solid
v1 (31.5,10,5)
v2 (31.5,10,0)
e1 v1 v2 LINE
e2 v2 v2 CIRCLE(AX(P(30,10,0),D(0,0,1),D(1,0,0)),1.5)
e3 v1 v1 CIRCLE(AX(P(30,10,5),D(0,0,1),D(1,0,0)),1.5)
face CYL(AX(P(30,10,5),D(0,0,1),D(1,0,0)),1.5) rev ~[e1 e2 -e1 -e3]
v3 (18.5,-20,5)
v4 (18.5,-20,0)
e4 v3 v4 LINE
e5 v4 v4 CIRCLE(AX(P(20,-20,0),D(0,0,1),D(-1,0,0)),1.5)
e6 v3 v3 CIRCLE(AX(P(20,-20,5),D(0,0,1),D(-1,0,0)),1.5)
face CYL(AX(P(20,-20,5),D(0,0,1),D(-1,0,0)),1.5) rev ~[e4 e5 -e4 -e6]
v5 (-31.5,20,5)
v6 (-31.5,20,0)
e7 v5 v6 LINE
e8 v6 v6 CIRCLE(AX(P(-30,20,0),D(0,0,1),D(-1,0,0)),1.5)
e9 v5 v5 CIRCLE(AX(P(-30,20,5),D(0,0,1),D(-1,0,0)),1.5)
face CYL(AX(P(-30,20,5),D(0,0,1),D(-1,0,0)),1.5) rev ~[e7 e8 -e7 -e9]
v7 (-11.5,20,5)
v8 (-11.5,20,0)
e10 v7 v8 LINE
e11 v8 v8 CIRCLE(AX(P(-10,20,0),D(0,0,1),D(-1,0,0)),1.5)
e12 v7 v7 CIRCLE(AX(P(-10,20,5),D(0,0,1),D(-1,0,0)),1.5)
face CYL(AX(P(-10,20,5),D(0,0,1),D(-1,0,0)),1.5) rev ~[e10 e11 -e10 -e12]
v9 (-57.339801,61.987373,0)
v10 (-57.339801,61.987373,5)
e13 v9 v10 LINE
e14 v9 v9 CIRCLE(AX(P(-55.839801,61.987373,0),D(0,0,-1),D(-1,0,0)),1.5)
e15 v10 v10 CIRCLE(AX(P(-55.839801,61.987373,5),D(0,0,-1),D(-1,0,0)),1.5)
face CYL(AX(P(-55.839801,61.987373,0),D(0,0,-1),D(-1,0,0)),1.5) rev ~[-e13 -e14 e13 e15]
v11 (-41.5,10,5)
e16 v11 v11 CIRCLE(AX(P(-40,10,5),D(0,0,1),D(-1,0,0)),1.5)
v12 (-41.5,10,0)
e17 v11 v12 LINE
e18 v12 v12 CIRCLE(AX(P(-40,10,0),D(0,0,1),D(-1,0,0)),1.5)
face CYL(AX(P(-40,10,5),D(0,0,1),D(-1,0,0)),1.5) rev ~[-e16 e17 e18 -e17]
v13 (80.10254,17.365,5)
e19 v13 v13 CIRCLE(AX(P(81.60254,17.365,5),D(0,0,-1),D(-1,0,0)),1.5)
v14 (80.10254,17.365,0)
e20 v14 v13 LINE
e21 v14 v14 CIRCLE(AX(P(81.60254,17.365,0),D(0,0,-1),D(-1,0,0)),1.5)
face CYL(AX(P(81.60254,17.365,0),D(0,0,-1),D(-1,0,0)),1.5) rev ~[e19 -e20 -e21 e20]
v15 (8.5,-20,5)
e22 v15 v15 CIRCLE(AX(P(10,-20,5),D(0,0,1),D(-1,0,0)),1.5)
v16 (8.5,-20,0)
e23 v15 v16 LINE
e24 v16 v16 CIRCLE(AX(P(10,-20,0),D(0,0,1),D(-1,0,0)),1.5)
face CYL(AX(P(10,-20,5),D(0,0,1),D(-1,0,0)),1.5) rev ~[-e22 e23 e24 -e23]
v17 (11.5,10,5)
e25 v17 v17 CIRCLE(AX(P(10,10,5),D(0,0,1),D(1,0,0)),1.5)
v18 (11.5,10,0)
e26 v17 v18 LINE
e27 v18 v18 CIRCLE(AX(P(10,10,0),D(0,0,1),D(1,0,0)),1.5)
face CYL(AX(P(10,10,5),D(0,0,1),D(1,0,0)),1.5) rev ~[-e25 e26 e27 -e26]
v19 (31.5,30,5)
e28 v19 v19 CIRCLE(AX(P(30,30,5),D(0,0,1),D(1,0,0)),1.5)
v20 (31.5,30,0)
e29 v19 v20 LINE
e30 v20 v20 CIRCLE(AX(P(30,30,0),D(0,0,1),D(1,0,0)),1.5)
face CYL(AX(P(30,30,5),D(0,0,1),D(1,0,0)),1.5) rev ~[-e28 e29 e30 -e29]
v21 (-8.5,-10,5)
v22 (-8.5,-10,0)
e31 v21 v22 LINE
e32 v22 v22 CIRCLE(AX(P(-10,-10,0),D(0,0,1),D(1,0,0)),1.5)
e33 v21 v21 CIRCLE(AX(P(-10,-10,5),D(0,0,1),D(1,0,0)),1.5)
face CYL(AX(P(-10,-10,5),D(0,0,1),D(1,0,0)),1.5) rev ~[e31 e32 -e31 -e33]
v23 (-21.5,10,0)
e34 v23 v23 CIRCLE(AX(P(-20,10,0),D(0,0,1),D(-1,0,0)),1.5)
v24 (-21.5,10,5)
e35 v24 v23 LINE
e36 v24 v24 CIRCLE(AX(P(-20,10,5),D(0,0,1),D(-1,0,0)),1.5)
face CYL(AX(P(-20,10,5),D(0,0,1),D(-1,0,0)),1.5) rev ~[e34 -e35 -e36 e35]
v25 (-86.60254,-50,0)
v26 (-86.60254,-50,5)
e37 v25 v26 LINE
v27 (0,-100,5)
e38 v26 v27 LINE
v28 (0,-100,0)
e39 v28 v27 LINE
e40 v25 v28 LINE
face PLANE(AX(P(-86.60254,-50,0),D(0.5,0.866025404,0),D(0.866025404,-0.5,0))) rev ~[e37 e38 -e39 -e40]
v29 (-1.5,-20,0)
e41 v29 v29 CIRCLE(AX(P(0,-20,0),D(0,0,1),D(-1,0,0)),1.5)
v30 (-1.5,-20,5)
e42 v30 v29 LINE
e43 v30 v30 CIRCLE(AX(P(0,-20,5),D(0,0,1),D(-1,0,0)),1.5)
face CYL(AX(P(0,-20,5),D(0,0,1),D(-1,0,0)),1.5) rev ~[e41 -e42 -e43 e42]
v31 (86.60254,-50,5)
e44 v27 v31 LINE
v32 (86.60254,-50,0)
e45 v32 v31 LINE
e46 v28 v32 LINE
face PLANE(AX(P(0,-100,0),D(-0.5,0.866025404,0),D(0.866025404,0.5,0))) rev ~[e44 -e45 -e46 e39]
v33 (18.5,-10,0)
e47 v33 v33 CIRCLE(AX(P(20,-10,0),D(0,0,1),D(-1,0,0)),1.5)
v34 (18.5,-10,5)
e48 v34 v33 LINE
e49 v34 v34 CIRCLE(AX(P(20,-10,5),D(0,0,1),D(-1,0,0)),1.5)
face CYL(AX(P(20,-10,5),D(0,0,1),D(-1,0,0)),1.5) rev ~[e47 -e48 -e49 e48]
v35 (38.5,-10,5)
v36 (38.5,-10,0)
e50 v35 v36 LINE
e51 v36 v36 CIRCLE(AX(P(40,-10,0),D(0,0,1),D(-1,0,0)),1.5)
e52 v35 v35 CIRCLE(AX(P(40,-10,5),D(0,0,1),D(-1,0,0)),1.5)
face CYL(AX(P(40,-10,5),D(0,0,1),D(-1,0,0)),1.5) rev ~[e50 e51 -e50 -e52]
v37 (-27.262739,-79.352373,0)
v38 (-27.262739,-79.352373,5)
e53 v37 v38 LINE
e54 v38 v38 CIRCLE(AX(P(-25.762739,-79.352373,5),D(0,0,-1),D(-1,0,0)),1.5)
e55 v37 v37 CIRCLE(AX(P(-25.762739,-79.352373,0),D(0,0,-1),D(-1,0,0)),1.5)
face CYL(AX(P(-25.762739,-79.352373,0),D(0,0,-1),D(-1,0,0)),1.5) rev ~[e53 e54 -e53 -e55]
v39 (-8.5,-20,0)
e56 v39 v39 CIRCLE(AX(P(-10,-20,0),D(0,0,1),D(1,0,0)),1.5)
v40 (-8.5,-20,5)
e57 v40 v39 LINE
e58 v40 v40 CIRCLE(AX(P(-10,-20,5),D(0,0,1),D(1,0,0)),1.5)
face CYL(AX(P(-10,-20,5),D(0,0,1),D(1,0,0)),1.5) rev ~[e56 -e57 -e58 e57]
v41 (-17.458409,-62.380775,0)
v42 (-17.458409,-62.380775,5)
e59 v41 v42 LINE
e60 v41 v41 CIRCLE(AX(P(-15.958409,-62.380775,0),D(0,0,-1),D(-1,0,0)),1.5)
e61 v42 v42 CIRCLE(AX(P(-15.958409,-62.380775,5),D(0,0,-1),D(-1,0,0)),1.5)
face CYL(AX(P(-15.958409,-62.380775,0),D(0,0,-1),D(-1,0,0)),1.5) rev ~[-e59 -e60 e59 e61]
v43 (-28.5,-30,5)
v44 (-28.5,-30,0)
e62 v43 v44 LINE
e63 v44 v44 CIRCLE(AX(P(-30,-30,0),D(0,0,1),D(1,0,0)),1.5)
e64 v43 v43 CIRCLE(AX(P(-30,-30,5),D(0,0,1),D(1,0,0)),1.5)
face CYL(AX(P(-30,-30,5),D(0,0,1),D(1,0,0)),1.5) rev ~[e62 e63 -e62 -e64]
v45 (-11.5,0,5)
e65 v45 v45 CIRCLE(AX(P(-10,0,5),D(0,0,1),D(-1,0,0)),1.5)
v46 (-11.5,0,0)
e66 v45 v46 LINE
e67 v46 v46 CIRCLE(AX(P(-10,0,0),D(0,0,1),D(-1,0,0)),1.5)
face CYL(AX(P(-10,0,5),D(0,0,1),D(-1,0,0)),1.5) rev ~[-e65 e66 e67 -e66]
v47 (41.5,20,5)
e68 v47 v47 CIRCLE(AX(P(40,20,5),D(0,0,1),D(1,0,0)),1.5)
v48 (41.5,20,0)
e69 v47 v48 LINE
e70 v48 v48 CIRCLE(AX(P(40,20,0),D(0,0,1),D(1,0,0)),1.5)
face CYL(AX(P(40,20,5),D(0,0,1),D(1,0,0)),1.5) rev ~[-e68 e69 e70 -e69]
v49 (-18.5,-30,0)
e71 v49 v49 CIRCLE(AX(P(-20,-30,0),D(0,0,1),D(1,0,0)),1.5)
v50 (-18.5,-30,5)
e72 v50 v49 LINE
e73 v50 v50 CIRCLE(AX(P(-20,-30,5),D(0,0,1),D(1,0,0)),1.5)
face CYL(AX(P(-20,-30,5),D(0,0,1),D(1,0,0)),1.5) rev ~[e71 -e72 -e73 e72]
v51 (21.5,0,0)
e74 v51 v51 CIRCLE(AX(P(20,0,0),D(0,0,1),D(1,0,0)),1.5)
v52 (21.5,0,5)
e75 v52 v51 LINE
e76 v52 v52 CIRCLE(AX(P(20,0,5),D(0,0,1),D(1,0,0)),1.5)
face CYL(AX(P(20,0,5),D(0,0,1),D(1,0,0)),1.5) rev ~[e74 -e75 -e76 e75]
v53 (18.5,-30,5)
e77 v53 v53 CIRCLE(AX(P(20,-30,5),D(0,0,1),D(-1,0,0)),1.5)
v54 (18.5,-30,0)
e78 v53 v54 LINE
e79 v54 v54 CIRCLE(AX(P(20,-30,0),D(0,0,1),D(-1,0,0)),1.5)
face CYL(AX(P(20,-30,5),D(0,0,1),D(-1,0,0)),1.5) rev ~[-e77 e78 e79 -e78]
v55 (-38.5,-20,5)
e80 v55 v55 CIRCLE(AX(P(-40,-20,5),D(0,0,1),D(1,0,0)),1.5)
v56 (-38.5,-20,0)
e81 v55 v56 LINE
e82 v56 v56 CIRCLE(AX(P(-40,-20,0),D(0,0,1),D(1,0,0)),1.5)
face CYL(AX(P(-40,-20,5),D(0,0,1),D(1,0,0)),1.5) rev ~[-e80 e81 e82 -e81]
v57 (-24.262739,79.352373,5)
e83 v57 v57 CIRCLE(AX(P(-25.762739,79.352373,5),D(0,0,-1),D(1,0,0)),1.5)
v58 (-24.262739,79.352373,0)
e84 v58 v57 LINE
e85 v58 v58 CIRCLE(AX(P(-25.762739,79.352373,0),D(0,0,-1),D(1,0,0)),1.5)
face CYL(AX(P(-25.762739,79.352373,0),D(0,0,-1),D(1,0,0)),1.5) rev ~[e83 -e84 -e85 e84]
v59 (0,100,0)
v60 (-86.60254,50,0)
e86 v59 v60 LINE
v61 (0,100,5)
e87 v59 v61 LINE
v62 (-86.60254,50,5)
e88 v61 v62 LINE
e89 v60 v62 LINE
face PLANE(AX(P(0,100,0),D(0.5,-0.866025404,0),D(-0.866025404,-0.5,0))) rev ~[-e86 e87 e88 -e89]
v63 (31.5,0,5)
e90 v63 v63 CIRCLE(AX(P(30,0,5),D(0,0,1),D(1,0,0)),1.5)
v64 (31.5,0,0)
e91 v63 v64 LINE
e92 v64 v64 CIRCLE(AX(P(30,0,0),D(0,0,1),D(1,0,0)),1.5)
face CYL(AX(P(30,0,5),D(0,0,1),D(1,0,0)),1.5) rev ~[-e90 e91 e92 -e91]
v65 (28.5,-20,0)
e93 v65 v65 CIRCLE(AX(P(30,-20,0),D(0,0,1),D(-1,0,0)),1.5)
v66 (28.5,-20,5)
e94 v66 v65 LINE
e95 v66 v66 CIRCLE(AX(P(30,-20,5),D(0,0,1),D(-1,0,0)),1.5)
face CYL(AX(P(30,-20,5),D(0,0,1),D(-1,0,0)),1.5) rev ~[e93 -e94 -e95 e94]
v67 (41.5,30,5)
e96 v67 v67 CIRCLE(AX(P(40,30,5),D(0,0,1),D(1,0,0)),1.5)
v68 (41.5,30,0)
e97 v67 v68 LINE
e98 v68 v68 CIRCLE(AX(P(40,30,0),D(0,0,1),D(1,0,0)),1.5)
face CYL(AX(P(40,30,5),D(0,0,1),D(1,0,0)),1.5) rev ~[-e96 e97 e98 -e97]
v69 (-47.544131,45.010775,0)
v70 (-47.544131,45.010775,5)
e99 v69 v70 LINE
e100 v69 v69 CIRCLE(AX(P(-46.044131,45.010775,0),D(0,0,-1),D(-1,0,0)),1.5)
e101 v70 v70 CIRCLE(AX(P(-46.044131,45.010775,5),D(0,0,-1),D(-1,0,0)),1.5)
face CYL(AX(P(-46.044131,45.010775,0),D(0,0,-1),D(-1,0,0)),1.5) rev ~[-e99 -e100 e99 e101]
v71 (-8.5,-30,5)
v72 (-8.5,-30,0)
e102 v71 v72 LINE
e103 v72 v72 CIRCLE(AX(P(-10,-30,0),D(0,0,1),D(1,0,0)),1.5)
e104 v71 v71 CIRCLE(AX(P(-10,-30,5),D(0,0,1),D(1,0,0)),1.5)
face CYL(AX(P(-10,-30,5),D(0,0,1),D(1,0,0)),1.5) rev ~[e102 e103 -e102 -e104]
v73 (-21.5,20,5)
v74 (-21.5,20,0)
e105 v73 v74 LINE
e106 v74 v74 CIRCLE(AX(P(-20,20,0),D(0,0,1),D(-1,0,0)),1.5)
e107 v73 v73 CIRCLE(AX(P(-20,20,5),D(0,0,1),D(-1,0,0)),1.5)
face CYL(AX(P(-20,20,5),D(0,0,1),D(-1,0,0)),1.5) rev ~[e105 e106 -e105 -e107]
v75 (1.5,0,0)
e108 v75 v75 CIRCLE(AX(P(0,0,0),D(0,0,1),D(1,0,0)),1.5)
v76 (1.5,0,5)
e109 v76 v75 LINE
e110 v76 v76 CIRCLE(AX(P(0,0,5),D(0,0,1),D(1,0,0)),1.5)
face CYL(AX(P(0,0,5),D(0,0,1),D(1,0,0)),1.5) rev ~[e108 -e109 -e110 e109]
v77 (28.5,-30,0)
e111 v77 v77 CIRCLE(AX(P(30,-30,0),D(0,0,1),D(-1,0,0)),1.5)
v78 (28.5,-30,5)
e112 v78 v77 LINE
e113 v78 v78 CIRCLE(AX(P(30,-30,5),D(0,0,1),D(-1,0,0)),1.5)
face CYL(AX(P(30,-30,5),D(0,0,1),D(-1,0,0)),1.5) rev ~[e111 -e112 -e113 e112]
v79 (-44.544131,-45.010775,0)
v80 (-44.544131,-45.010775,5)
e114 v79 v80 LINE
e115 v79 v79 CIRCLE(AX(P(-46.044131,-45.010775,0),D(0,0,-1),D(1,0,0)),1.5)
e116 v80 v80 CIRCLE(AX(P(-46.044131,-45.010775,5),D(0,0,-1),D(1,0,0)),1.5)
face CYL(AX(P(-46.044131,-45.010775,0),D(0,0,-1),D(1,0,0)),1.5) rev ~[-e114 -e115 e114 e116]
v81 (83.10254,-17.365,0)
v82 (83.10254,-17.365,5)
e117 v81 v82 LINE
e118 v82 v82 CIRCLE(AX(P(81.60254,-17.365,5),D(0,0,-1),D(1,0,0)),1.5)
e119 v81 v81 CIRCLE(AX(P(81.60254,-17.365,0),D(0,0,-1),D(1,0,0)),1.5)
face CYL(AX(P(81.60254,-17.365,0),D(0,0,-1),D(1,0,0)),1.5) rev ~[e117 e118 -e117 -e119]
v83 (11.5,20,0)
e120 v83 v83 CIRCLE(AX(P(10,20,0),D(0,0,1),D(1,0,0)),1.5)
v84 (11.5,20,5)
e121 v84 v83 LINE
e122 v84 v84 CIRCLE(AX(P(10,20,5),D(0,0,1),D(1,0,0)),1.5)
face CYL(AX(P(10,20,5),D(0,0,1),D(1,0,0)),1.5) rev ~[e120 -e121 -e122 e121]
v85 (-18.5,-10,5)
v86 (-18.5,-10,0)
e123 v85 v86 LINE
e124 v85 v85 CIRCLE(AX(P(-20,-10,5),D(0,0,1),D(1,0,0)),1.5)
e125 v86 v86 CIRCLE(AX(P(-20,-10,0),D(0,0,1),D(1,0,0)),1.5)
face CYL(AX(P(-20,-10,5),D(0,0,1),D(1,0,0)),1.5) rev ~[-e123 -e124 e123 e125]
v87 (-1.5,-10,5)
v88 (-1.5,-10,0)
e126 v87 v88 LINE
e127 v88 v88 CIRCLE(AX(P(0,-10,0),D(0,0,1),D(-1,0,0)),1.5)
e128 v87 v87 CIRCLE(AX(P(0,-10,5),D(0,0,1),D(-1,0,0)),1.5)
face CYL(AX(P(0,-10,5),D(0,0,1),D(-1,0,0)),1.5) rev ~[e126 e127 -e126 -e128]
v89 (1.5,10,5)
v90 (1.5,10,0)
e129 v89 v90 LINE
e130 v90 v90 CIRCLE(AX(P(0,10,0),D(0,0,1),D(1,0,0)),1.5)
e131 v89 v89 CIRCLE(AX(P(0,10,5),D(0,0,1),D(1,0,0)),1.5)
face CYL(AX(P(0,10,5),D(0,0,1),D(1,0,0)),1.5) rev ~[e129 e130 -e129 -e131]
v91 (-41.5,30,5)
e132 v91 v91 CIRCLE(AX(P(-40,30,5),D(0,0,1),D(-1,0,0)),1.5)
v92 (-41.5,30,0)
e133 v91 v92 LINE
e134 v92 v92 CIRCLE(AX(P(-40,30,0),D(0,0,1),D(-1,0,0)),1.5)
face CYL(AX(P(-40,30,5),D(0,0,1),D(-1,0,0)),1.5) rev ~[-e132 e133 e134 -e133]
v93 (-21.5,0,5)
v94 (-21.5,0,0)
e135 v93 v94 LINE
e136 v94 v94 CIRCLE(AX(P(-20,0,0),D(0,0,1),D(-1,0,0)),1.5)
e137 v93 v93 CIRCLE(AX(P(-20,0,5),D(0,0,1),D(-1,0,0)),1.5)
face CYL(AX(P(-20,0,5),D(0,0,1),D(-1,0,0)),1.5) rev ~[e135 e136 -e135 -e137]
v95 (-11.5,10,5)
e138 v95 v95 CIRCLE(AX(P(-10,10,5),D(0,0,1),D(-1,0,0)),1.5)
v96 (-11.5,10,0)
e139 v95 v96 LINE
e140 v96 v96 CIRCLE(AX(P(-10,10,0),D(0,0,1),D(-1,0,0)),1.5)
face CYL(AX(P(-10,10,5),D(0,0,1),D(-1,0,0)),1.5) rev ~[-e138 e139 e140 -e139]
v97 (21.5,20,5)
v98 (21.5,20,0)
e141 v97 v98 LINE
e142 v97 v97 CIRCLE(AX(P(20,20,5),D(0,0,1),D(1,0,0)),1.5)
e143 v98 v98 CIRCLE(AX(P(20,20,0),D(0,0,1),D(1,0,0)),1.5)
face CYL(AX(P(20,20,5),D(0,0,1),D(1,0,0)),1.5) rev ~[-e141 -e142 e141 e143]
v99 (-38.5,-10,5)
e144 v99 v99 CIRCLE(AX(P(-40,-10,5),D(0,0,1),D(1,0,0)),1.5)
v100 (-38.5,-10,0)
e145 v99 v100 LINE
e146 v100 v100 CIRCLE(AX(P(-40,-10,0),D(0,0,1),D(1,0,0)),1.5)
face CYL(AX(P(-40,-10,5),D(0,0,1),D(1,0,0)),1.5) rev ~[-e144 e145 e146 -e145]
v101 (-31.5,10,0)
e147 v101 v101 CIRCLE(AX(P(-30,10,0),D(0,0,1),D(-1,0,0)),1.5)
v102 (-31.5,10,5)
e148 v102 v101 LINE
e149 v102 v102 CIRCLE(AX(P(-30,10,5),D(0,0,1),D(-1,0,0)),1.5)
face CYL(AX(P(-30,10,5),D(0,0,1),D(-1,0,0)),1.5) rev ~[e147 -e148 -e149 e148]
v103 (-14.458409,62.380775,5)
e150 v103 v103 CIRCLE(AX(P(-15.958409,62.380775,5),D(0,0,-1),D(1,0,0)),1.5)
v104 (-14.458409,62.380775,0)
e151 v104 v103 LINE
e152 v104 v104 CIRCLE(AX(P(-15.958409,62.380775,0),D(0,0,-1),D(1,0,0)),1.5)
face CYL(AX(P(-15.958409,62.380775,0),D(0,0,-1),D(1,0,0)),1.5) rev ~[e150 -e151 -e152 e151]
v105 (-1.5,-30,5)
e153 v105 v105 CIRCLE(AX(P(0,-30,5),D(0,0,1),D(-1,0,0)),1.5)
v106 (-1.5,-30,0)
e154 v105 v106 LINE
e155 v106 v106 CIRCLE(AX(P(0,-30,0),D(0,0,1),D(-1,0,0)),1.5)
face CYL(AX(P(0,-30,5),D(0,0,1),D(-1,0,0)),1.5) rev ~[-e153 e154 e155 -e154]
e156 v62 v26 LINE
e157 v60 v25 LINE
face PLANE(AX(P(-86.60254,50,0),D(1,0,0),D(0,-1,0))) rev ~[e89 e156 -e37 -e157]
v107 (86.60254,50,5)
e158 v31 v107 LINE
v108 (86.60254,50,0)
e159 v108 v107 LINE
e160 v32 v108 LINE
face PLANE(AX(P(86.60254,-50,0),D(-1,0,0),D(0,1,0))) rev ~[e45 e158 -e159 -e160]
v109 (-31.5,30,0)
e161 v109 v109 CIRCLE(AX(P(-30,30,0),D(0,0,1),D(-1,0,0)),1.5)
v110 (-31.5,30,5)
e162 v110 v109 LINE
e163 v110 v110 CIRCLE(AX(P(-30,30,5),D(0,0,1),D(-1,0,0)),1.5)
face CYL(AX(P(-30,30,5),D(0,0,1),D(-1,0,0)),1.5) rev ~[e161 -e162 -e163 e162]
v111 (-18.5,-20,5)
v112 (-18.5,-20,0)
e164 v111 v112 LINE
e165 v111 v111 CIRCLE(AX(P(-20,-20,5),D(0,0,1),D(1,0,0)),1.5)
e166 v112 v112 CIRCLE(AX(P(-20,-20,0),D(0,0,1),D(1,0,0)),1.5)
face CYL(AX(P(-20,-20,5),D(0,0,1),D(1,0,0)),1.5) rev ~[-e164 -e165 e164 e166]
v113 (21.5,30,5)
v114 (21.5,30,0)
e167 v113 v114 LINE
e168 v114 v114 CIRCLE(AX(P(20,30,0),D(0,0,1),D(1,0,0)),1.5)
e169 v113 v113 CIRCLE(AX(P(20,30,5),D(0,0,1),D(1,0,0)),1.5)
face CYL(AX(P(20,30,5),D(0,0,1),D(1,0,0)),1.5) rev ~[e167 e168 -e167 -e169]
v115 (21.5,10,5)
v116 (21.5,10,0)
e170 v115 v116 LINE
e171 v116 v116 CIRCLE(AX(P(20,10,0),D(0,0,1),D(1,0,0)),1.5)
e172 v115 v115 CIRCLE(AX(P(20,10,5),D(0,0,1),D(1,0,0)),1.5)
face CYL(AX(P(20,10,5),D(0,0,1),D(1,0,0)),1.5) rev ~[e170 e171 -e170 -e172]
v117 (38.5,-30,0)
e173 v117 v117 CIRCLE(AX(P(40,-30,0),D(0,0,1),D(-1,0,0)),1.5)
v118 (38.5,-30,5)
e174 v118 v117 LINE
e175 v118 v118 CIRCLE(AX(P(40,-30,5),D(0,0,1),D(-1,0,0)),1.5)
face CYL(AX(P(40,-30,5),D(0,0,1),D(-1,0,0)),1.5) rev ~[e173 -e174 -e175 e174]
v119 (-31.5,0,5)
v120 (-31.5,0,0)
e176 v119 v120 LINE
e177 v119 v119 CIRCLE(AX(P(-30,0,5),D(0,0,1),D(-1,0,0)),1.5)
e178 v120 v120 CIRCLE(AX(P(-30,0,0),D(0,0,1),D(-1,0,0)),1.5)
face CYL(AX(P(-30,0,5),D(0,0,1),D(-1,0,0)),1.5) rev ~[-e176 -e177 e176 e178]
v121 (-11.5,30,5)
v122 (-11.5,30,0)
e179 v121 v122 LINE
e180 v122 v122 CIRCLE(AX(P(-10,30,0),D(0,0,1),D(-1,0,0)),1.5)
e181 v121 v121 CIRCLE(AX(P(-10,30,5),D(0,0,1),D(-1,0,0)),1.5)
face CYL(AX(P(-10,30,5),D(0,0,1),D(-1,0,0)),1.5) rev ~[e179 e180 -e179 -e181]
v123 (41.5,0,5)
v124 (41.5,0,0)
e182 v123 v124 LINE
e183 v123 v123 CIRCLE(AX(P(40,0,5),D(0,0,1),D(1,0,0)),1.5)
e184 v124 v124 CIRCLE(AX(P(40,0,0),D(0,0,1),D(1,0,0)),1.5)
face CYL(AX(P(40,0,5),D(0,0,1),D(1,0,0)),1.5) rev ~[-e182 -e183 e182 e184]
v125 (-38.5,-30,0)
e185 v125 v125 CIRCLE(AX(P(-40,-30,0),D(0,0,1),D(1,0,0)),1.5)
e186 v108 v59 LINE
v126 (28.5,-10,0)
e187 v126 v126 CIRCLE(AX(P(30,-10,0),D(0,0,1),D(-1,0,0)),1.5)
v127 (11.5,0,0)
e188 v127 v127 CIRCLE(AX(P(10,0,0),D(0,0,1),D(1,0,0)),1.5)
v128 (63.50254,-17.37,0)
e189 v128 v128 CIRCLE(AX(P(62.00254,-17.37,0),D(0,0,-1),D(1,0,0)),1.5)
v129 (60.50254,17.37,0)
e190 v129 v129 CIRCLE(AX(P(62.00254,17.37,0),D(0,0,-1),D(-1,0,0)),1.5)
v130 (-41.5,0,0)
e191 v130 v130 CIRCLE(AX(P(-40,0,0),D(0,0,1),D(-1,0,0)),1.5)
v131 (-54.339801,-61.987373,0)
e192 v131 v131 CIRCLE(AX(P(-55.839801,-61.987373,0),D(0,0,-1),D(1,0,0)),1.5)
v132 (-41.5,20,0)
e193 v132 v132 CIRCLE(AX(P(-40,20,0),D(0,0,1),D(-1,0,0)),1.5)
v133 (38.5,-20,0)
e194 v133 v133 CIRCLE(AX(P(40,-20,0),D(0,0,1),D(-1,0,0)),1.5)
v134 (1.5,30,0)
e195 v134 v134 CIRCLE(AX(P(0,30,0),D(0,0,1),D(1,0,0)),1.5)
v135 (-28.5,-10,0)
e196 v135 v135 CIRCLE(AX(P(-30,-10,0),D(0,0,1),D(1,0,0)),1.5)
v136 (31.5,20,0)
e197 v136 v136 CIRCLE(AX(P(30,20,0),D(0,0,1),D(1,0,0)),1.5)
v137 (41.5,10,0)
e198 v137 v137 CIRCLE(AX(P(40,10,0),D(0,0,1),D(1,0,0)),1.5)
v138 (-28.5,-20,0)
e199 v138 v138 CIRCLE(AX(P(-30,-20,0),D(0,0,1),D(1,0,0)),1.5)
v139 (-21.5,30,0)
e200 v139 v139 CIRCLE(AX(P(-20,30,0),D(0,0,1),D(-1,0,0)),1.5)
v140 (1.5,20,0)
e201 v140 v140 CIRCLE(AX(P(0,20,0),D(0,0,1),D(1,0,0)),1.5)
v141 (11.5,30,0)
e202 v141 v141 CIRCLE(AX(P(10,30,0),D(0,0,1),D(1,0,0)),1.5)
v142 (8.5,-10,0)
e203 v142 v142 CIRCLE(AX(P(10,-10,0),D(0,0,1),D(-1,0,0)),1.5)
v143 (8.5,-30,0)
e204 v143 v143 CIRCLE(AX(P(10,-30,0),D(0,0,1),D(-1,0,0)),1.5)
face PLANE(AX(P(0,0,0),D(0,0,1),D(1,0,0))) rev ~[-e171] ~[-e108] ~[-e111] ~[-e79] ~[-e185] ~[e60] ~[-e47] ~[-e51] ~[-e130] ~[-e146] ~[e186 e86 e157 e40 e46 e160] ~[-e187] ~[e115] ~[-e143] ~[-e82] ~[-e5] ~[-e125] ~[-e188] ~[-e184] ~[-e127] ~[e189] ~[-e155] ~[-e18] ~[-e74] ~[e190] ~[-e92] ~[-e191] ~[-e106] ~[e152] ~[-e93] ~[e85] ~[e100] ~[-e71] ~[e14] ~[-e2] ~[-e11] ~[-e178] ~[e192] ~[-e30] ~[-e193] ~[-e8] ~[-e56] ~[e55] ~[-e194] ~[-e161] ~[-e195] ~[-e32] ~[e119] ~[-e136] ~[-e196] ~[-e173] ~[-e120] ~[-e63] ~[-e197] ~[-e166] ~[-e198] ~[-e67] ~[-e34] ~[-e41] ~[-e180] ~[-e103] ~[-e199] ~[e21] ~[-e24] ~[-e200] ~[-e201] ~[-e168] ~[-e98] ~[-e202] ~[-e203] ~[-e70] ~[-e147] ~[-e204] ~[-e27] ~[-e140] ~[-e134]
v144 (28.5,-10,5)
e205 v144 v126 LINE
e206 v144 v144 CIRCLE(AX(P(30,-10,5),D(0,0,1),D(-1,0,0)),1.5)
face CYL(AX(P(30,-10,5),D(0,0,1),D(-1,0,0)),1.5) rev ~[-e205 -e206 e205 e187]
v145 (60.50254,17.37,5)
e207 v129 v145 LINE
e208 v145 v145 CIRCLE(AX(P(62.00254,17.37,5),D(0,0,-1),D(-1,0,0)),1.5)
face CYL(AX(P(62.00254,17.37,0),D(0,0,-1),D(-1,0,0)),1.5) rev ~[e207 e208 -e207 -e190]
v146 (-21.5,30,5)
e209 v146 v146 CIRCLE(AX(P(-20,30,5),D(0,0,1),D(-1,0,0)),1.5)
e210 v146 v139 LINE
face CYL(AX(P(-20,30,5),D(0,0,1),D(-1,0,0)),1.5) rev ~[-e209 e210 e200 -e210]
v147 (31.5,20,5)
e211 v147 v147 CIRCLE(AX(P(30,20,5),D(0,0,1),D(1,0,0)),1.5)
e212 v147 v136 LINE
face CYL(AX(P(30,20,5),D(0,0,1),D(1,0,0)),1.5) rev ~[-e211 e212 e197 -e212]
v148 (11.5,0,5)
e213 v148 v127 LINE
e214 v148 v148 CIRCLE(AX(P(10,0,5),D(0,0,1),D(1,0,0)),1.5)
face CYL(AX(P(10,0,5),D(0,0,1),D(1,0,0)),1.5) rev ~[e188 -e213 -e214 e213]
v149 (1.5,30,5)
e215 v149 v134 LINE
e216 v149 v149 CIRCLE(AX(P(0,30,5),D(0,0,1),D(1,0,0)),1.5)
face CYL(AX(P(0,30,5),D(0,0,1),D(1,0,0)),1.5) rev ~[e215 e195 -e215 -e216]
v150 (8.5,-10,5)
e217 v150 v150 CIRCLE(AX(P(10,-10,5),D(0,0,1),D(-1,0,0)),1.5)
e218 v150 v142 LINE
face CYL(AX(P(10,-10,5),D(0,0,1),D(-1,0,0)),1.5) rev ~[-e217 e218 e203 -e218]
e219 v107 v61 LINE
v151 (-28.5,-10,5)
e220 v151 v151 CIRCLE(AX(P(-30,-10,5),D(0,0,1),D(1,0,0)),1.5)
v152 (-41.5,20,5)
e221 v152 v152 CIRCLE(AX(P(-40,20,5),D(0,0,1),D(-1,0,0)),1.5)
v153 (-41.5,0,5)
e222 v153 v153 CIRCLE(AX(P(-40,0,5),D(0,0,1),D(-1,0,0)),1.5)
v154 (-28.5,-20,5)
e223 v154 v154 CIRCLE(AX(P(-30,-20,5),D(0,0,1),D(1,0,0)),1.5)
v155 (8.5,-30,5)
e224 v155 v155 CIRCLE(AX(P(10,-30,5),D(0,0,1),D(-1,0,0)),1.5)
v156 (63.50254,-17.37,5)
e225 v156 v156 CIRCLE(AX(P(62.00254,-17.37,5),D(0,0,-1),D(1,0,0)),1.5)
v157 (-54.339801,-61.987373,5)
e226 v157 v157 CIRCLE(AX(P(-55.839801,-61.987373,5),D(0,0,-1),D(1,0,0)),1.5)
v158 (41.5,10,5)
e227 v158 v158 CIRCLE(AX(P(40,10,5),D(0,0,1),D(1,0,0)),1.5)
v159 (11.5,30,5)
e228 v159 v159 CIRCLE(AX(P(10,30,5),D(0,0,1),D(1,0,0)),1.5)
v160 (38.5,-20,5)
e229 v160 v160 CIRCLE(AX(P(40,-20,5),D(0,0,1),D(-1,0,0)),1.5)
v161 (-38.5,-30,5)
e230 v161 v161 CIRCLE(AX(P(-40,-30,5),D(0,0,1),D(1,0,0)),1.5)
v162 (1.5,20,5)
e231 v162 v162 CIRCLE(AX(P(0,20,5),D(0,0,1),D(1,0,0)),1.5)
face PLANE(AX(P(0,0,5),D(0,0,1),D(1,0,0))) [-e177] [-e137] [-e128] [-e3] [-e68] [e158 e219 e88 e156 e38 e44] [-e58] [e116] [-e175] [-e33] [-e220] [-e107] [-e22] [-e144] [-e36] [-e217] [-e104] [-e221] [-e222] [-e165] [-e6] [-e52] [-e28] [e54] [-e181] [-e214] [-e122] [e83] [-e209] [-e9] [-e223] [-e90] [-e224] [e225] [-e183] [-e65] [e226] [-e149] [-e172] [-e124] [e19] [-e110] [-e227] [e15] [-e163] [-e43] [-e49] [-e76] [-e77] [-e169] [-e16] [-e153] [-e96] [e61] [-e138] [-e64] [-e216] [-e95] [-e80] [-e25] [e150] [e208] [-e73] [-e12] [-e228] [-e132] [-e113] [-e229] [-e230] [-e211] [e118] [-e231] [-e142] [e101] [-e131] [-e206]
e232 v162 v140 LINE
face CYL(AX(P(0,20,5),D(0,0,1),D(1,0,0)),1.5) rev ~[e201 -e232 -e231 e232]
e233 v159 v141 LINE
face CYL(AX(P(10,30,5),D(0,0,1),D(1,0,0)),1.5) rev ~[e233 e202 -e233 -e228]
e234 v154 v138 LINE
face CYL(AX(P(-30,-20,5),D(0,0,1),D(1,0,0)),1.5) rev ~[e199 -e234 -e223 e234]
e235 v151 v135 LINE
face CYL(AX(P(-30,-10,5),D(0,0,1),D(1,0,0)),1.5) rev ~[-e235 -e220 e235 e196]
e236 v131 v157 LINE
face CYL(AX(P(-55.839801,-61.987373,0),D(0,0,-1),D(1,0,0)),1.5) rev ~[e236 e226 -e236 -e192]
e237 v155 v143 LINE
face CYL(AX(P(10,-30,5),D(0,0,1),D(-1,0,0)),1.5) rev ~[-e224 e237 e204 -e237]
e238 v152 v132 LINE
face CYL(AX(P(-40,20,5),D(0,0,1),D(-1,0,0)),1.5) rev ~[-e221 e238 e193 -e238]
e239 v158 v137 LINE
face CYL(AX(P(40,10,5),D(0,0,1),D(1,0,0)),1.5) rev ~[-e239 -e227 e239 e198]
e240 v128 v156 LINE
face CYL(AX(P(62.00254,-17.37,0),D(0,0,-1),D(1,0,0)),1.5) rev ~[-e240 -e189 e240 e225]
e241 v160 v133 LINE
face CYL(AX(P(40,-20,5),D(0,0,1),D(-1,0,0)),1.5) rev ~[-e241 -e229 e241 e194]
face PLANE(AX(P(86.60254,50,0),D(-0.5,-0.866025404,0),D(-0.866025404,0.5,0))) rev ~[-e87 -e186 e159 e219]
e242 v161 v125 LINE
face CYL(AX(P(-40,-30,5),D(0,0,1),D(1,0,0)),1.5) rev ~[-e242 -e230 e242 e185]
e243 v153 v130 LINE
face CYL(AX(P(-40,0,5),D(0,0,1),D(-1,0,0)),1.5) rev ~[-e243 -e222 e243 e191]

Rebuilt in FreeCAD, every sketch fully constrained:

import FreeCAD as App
import Part
import Sketcher
Q = App.Units.Quantity

doc = App.newDocument("Part")
params = doc.addObject("Spreadsheet::Sheet", "Params")
for row, (alias, value) in enumerate([
    ("sketch1_height", "100 mm"),
    ("sketch1_length", "100 mm"),
    ("pad1_length", "5 mm"),
    ("sketch2_diameter", "3 mm"),
    ("pocket1_length", "5 mm"),
    ("sketch3_diameter", "3 mm"),
], start=1):
    params.set(f"A{row}", alias)
    params.set(f"B{row}", "=" + value)
    params.setAlias(f"B{row}", alias)

body = doc.addObject("PartDesign::Body", "Body")

sketch1 = body.newObject("Sketcher::SketchObject", "Sketch")
sketch1.AttachmentSupport = (doc.getObject("XY_Plane"), [""])
sketch1.MapMode = "FlatFace"
sketch1.addGeometry(Part.LineSegment(App.Vector(87, 50, 0), App.Vector(0, 100, 0)), False)
sketch1.addGeometry(Part.LineSegment(App.Vector(0, 100, 0), App.Vector(-87, 50, 0)), False)
sketch1.addGeometry(Part.LineSegment(App.Vector(-87, 50, 0), App.Vector(-87, -50, 0)), False)
sketch1.addGeometry(Part.LineSegment(App.Vector(-87, -50, 0), App.Vector(0, -100, 0)), False)
sketch1.addGeometry(Part.LineSegment(App.Vector(0, -100, 0), App.Vector(87, -50, 0)), False)
sketch1.addGeometry(Part.LineSegment(App.Vector(87, -50, 0), App.Vector(87, 50, 0)), False)
sketch1.addConstraint(Sketcher.Constraint("Coincident", 0, 2, 1, 1))
sketch1.addConstraint(Sketcher.Constraint("Coincident", 1, 2, 2, 1))
sketch1.addConstraint(Sketcher.Constraint("Coincident", 2, 2, 3, 1))
sketch1.addConstraint(Sketcher.Constraint("Coincident", 3, 2, 4, 1))
sketch1.addConstraint(Sketcher.Constraint("Coincident", 4, 2, 5, 1))
sketch1.addConstraint(Sketcher.Constraint("Coincident", 5, 2, 0, 1))
sketch1.addConstraint(Sketcher.Constraint("Vertical", 2))
sketch1.addConstraint(Sketcher.Constraint("Vertical", 5))
sketch1.addConstraint(Sketcher.Constraint("Symmetric", 0, 2, 3, 2, -1, 1))
sketch1.addConstraint(Sketcher.Constraint("Symmetric", 1, 2, 4, 2, -1, 1))
sketch1.addConstraint(Sketcher.Constraint("PointOnObject", 0, 2, -2))
sketch1.addConstraint(Sketcher.Constraint("Parallel", 0, 3))
sketch1.addConstraint(Sketcher.Constraint("Horizontal", 2, 2, 4, 2))
sketch1.addConstraint(Sketcher.Constraint("DistanceY", 2, 2, 2, 1, Q("100 mm")))
sketch1.addConstraint(Sketcher.Constraint("Angle", 0, Q("150 deg")))
sketch1.addConstraint(Sketcher.Constraint("Distance", 0, Q("100 mm")))
sketch1.setExpression("Constraints[13]", "Params.sketch1_height")
sketch1.setExpression("Constraints[15]", "Params.sketch1_length")
pad1 = body.newObject("PartDesign::Pad", "Pad")
pad1.Profile = sketch1
pad1.setExpression("Length", "Params.pad1_length")

sketch2 = body.newObject("Sketcher::SketchObject", "Sketch001")
sketch2.AttachmentSupport = (doc.getObject("XY_Plane"), [""])
sketch2.MapMode = "FlatFace"
sketch2.addGeometry(Part.Circle(App.Vector(81.6, 17.4, 0), App.Vector(0, 0, 1), 1.5), False)
sketch2.addGeometry(Part.Circle(App.Vector(62, 17.4, 0), App.Vector(0, 0, 1), 1.5), False)
sketch2.addGeometry(Part.Circle(App.Vector(62, -17.4, 0), App.Vector(0, 0, 1), 1.5), False)
sketch2.addGeometry(Part.Circle(App.Vector(81.6, -17.4, 0), App.Vector(0, 0, 1), 1.5), False)
sketch2.addGeometry(Part.Circle(App.Vector(-55.8, 62, 0), App.Vector(0, 0, 1), 1.5), False)
sketch2.addGeometry(Part.Circle(App.Vector(-46, 45, 0), App.Vector(0, 0, 1), 1.5), False)
sketch2.addGeometry(Part.Circle(App.Vector(-16, 62.4, 0), App.Vector(0, 0, 1), 1.5), False)
sketch2.addGeometry(Part.Circle(App.Vector(-25.8, 79.4, 0), App.Vector(0, 0, 1), 1.5), False)
sketch2.addGeometry(Part.Circle(App.Vector(-25.8, -79.4, 0), App.Vector(0, 0, 1), 1.5), False)
sketch2.addGeometry(Part.Circle(App.Vector(-16, -62.4, 0), App.Vector(0, 0, 1), 1.5), False)
sketch2.addGeometry(Part.Circle(App.Vector(-46, -45, 0), App.Vector(0, 0, 1), 1.5), False)
sketch2.addGeometry(Part.Circle(App.Vector(-55.8, -62, 0), App.Vector(0, 0, 1), 1.5), False)
sketch2.addConstraint(Sketcher.Constraint("Equal", 0, 1))
sketch2.addConstraint(Sketcher.Constraint("Equal", 1, 2))
sketch2.addConstraint(Sketcher.Constraint("Equal", 2, 3))
sketch2.addConstraint(Sketcher.Constraint("Equal", 3, 4))
sketch2.addConstraint(Sketcher.Constraint("Equal", 4, 5))
sketch2.addConstraint(Sketcher.Constraint("Equal", 5, 6))
sketch2.addConstraint(Sketcher.Constraint("Equal", 6, 7))
sketch2.addConstraint(Sketcher.Constraint("Equal", 7, 8))
sketch2.addConstraint(Sketcher.Constraint("Equal", 8, 9))
sketch2.addConstraint(Sketcher.Constraint("Equal", 9, 10))
sketch2.addConstraint(Sketcher.Constraint("Equal", 10, 11))
sketch2.addConstraint(Sketcher.Constraint("Symmetric", 1, 3, 2, 3, -1))
sketch2.addConstraint(Sketcher.Constraint("Symmetric", 0, 3, 3, 3, -1))
sketch2.addConstraint(Sketcher.Constraint("Symmetric", 7, 3, 8, 3, -1))
sketch2.addConstraint(Sketcher.Constraint("Symmetric", 6, 3, 9, 3, -1))
sketch2.addConstraint(Sketcher.Constraint("Symmetric", 5, 3, 10, 3, -1))
sketch2.addConstraint(Sketcher.Constraint("Symmetric", 4, 3, 11, 3, -1))
sketch2.addConstraint(Sketcher.Constraint("Diameter", 0, Q("3 mm")))
sketch2.addConstraint(Sketcher.Constraint("DistanceX", 1, 3, 0, 3, Q("19.6 mm")))
sketch2.addConstraint(Sketcher.Constraint("DistanceY", -1, 1, 1, 3, Q("17.37 mm")))
sketch2.addConstraint(Sketcher.Constraint("DistanceY", 3, 3, 0, 3, Q("34.73 mm")))
sketch2.addConstraint(Sketcher.Constraint("DistanceY", 5, 3, 6, 3, Q("17.37 mm")))
sketch2.addConstraint(Sketcher.Constraint("DistanceY", 4, 3, 7, 3, Q("17.365 mm")))
sketch2.addConstraint(Sketcher.Constraint("DistanceX", 4, 3, -1, 1, Q("55.839801 mm")))
sketch2.addConstraint(Sketcher.Constraint("DistanceX", -1, 1, 0, 3, Q("81.60254 mm")))
sketch2.addConstraint(Sketcher.Constraint("DistanceX", 5, 3, -1, 1, Q("46.044131 mm")))
sketch2.addConstraint(Sketcher.Constraint("DistanceX", 6, 3, -1, 1, Q("15.958409 mm")))
sketch2.addConstraint(Sketcher.Constraint("DistanceX", 7, 3, -1, 1, Q("25.762739 mm")))
sketch2.addConstraint(Sketcher.Constraint("DistanceY", 8, 3, 5, 3, Q("124.363148 mm")))
sketch2.addConstraint(Sketcher.Constraint("DistanceY", 9, 3, 5, 3, Q("107.39155 mm")))
sketch2.setExpression("Constraints[17]", "Params.sketch2_diameter")
pocket1 = body.newObject("PartDesign::Pocket", "Pocket")
pocket1.Profile = sketch2
pocket1.setExpression("Length", "Params.pocket1_length")
pocket1.Reversed = True

sketch3 = body.newObject("Sketcher::SketchObject", "Sketch002")
sketch3.AttachmentSupport = (doc.getObject("XY_Plane"), [""])
sketch3.MapMode = "FlatFace"
sketch3.AttachmentOffset = App.Placement(App.Vector(0, 0, 5), App.Rotation())
sketch3.addGeometry(Part.Circle(App.Vector(0, 0, 0), App.Vector(0, 0, 1), 1.5), False)
sketch3.addGeometry(Part.Circle(App.Vector(10, 0, 0), App.Vector(0, 0, 1), 1.5), False)
sketch3.addGeometry(Part.Circle(App.Vector(20, 0, 0), App.Vector(0, 0, 1), 1.5), False)
sketch3.addGeometry(Part.Circle(App.Vector(30, 0, 0), App.Vector(0, 0, 1), 1.5), False)
sketch3.addGeometry(Part.Circle(App.Vector(40, 0, 0), App.Vector(0, 0, 1), 1.5), False)
sketch3.addGeometry(Part.Circle(App.Vector(10, 10, 0), App.Vector(0, 0, 1), 1.5), False)
sketch3.addGeometry(Part.Circle(App.Vector(20, 10, 0), App.Vector(0, 0, 1), 1.5), False)
sketch3.addGeometry(Part.Circle(App.Vector(30, 10, 0), App.Vector(0, 0, 1), 1.5), False)
sketch3.addGeometry(Part.Circle(App.Vector(40, 10, 0), App.Vector(0, 0, 1), 1.5), False)
sketch3.addGeometry(Part.Circle(App.Vector(10, 20, 0), App.Vector(0, 0, 1), 1.5), False)
sketch3.addGeometry(Part.Circle(App.Vector(20, 20, 0), App.Vector(0, 0, 1), 1.5), False)
sketch3.addGeometry(Part.Circle(App.Vector(30, 20, 0), App.Vector(0, 0, 1), 1.5), False)
sketch3.addGeometry(Part.Circle(App.Vector(40, 20, 0), App.Vector(0, 0, 1), 1.5), False)
sketch3.addGeometry(Part.Circle(App.Vector(10, 30, 0), App.Vector(0, 0, 1), 1.5), False)
sketch3.addGeometry(Part.Circle(App.Vector(20, 30, 0), App.Vector(0, 0, 1), 1.5), False)
sketch3.addGeometry(Part.Circle(App.Vector(30, 30, 0), App.Vector(0, 0, 1), 1.5), False)
sketch3.addGeometry(Part.Circle(App.Vector(40, 30, 0), App.Vector(0, 0, 1), 1.5), False)
sketch3.addGeometry(Part.Circle(App.Vector(0, 10, 0), App.Vector(0, 0, 1), 1.5), False)
sketch3.addGeometry(Part.Circle(App.Vector(0, 20, 0), App.Vector(0, 0, 1), 1.5), False)
sketch3.addGeometry(Part.Circle(App.Vector(0, 30, 0), App.Vector(0, 0, 1), 1.5), False)
sketch3.addGeometry(Part.Circle(App.Vector(0, -30, 0), App.Vector(0, 0, 1), 1.5), False)
sketch3.addGeometry(Part.Circle(App.Vector(0, -20, 0), App.Vector(0, 0, 1), 1.5), False)
sketch3.addGeometry(Part.Circle(App.Vector(0, -10, 0), App.Vector(0, 0, 1), 1.5), False)
sketch3.addGeometry(Part.Circle(App.Vector(40, -30, 0), App.Vector(0, 0, 1), 1.5), False)
sketch3.addGeometry(Part.Circle(App.Vector(30, -30, 0), App.Vector(0, 0, 1), 1.5), False)
sketch3.addGeometry(Part.Circle(App.Vector(20, -30, 0), App.Vector(0, 0, 1), 1.5), False)
sketch3.addGeometry(Part.Circle(App.Vector(10, -30, 0), App.Vector(0, 0, 1), 1.5), False)
sketch3.addGeometry(Part.Circle(App.Vector(40, -20, 0), App.Vector(0, 0, 1), 1.5), False)
sketch3.addGeometry(Part.Circle(App.Vector(30, -20, 0), App.Vector(0, 0, 1), 1.5), False)
sketch3.addGeometry(Part.Circle(App.Vector(20, -20, 0), App.Vector(0, 0, 1), 1.5), False)
sketch3.addGeometry(Part.Circle(App.Vector(10, -20, 0), App.Vector(0, 0, 1), 1.5), False)
sketch3.addGeometry(Part.Circle(App.Vector(40, -10, 0), App.Vector(0, 0, 1), 1.5), False)
sketch3.addGeometry(Part.Circle(App.Vector(30, -10, 0), App.Vector(0, 0, 1), 1.5), False)
sketch3.addGeometry(Part.Circle(App.Vector(20, -10, 0), App.Vector(0, 0, 1), 1.5), False)
sketch3.addGeometry(Part.Circle(App.Vector(10, -10, 0), App.Vector(0, 0, 1), 1.5), False)
sketch3.addGeometry(Part.Circle(App.Vector(-10, -10, 0), App.Vector(0, 0, 1), 1.5), False)
sketch3.addGeometry(Part.Circle(App.Vector(-20, -10, 0), App.Vector(0, 0, 1), 1.5), False)
sketch3.addGeometry(Part.Circle(App.Vector(-30, -10, 0), App.Vector(0, 0, 1), 1.5), False)
sketch3.addGeometry(Part.Circle(App.Vector(-40, -10, 0), App.Vector(0, 0, 1), 1.5), False)
sketch3.addGeometry(Part.Circle(App.Vector(-10, -20, 0), App.Vector(0, 0, 1), 1.5), False)
sketch3.addGeometry(Part.Circle(App.Vector(-20, -20, 0), App.Vector(0, 0, 1), 1.5), False)
sketch3.addGeometry(Part.Circle(App.Vector(-30, -20, 0), App.Vector(0, 0, 1), 1.5), False)
sketch3.addGeometry(Part.Circle(App.Vector(-40, -20, 0), App.Vector(0, 0, 1), 1.5), False)
sketch3.addGeometry(Part.Circle(App.Vector(-10, -30, 0), App.Vector(0, 0, 1), 1.5), False)
sketch3.addGeometry(Part.Circle(App.Vector(-20, -30, 0), App.Vector(0, 0, 1), 1.5), False)
sketch3.addGeometry(Part.Circle(App.Vector(-30, -30, 0), App.Vector(0, 0, 1), 1.5), False)
sketch3.addGeometry(Part.Circle(App.Vector(-40, -30, 0), App.Vector(0, 0, 1), 1.5), False)
sketch3.addGeometry(Part.Circle(App.Vector(-40, 30, 0), App.Vector(0, 0, 1), 1.5), False)
sketch3.addGeometry(Part.Circle(App.Vector(-30, 30, 0), App.Vector(0, 0, 1), 1.5), False)
sketch3.addGeometry(Part.Circle(App.Vector(-20, 30, 0), App.Vector(0, 0, 1), 1.5), False)
sketch3.addGeometry(Part.Circle(App.Vector(-10, 30, 0), App.Vector(0, 0, 1), 1.5), False)
sketch3.addGeometry(Part.Circle(App.Vector(-40, 20, 0), App.Vector(0, 0, 1), 1.5), False)
sketch3.addGeometry(Part.Circle(App.Vector(-30, 20, 0), App.Vector(0, 0, 1), 1.5), False)
sketch3.addGeometry(Part.Circle(App.Vector(-20, 20, 0), App.Vector(0, 0, 1), 1.5), False)
sketch3.addGeometry(Part.Circle(App.Vector(-10, 20, 0), App.Vector(0, 0, 1), 1.5), False)
sketch3.addGeometry(Part.Circle(App.Vector(-40, 10, 0), App.Vector(0, 0, 1), 1.5), False)
sketch3.addGeometry(Part.Circle(App.Vector(-30, 10, 0), App.Vector(0, 0, 1), 1.5), False)
sketch3.addGeometry(Part.Circle(App.Vector(-20, 10, 0), App.Vector(0, 0, 1), 1.5), False)
sketch3.addGeometry(Part.Circle(App.Vector(-10, 10, 0), App.Vector(0, 0, 1), 1.5), False)
sketch3.addGeometry(Part.Circle(App.Vector(-40, 0, 0), App.Vector(0, 0, 1), 1.5), False)
sketch3.addGeometry(Part.Circle(App.Vector(-30, 0, 0), App.Vector(0, 0, 1), 1.5), False)
sketch3.addGeometry(Part.Circle(App.Vector(-20, 0, 0), App.Vector(0, 0, 1), 1.5), False)
sketch3.addGeometry(Part.Circle(App.Vector(-10, 0, 0), App.Vector(0, 0, 1), 1.5), False)
sketch3.addConstraint(Sketcher.Constraint("Coincident", 0, 3, -1, 1))
sketch3.addConstraint(Sketcher.Constraint("Equal", 0, 1))
sketch3.addConstraint(Sketcher.Constraint("Equal", 1, 2))
sketch3.addConstraint(Sketcher.Constraint("Equal", 2, 3))
sketch3.addConstraint(Sketcher.Constraint("Equal", 3, 4))
sketch3.addConstraint(Sketcher.Constraint("Equal", 4, 5))
sketch3.addConstraint(Sketcher.Constraint("Equal", 5, 6))
sketch3.addConstraint(Sketcher.Constraint("Equal", 6, 7))
sketch3.addConstraint(Sketcher.Constraint("Equal", 7, 8))
sketch3.addConstraint(Sketcher.Constraint("Equal", 8, 9))
sketch3.addConstraint(Sketcher.Constraint("Equal", 9, 10))
sketch3.addConstraint(Sketcher.Constraint("Equal", 10, 11))
sketch3.addConstraint(Sketcher.Constraint("Equal", 11, 12))
sketch3.addConstraint(Sketcher.Constraint("Equal", 12, 13))
sketch3.addConstraint(Sketcher.Constraint("Equal", 13, 14))
sketch3.addConstraint(Sketcher.Constraint("Equal", 14, 15))
sketch3.addConstraint(Sketcher.Constraint("Equal", 15, 16))
sketch3.addConstraint(Sketcher.Constraint("Equal", 16, 17))
sketch3.addConstraint(Sketcher.Constraint("Equal", 17, 18))
sketch3.addConstraint(Sketcher.Constraint("Equal", 18, 19))
sketch3.addConstraint(Sketcher.Constraint("Equal", 19, 20))
sketch3.addConstraint(Sketcher.Constraint("Equal", 20, 21))
sketch3.addConstraint(Sketcher.Constraint("Equal", 21, 22))
sketch3.addConstraint(Sketcher.Constraint("Equal", 22, 23))
sketch3.addConstraint(Sketcher.Constraint("Equal", 23, 24))
sketch3.addConstraint(Sketcher.Constraint("Equal", 24, 25))
sketch3.addConstraint(Sketcher.Constraint("Equal", 25, 26))
sketch3.addConstraint(Sketcher.Constraint("Equal", 26, 27))
sketch3.addConstraint(Sketcher.Constraint("Equal", 27, 28))
sketch3.addConstraint(Sketcher.Constraint("Equal", 28, 29))
sketch3.addConstraint(Sketcher.Constraint("Equal", 29, 30))
sketch3.addConstraint(Sketcher.Constraint("Equal", 30, 31))
sketch3.addConstraint(Sketcher.Constraint("Equal", 31, 32))
sketch3.addConstraint(Sketcher.Constraint("Equal", 32, 33))
sketch3.addConstraint(Sketcher.Constraint("Equal", 33, 34))
sketch3.addConstraint(Sketcher.Constraint("Equal", 34, 35))
sketch3.addConstraint(Sketcher.Constraint("Equal", 35, 36))
sketch3.addConstraint(Sketcher.Constraint("Equal", 36, 37))
sketch3.addConstraint(Sketcher.Constraint("Equal", 37, 38))
sketch3.addConstraint(Sketcher.Constraint("Equal", 38, 39))
sketch3.addConstraint(Sketcher.Constraint("Equal", 39, 40))
sketch3.addConstraint(Sketcher.Constraint("Equal", 40, 41))
sketch3.addConstraint(Sketcher.Constraint("Equal", 41, 42))
sketch3.addConstraint(Sketcher.Constraint("Equal", 42, 43))
sketch3.addConstraint(Sketcher.Constraint("Equal", 43, 44))
sketch3.addConstraint(Sketcher.Constraint("Equal", 44, 45))
sketch3.addConstraint(Sketcher.Constraint("Equal", 45, 46))
sketch3.addConstraint(Sketcher.Constraint("Equal", 46, 47))
sketch3.addConstraint(Sketcher.Constraint("Equal", 47, 48))
sketch3.addConstraint(Sketcher.Constraint("Equal", 48, 49))
sketch3.addConstraint(Sketcher.Constraint("Equal", 49, 50))
sketch3.addConstraint(Sketcher.Constraint("Equal", 50, 51))
sketch3.addConstraint(Sketcher.Constraint("Equal", 51, 52))
sketch3.addConstraint(Sketcher.Constraint("Equal", 52, 53))
sketch3.addConstraint(Sketcher.Constraint("Equal", 53, 54))
sketch3.addConstraint(Sketcher.Constraint("Equal", 54, 55))
sketch3.addConstraint(Sketcher.Constraint("Equal", 55, 56))
sketch3.addConstraint(Sketcher.Constraint("Equal", 56, 57))
sketch3.addConstraint(Sketcher.Constraint("Equal", 57, 58))
sketch3.addConstraint(Sketcher.Constraint("Equal", 58, 59))
sketch3.addConstraint(Sketcher.Constraint("Equal", 59, 60))
sketch3.addConstraint(Sketcher.Constraint("Equal", 60, 61))
sketch3.addConstraint(Sketcher.Constraint("Equal", 61, 62))
sketch3.addConstraint(Sketcher.Constraint("Symmetric", 19, 3, 20, 3, -1, 1))
sketch3.addConstraint(Sketcher.Constraint("Symmetric", 18, 3, 21, 3, -1, 1))
sketch3.addConstraint(Sketcher.Constraint("Symmetric", 17, 3, 22, 3, -1, 1))
sketch3.addConstraint(Sketcher.Constraint("Symmetric", 5, 3, 35, 3, -1, 1))
sketch3.addConstraint(Sketcher.Constraint("Symmetric", 6, 3, 36, 3, -1, 1))
sketch3.addConstraint(Sketcher.Constraint("Symmetric", 7, 3, 37, 3, -1, 1))
sketch3.addConstraint(Sketcher.Constraint("Symmetric", 8, 3, 38, 3, -1, 1))
sketch3.addConstraint(Sketcher.Constraint("Symmetric", 9, 3, 39, 3, -1, 1))
sketch3.addConstraint(Sketcher.Constraint("Symmetric", 10, 3, 40, 3, -1, 1))
sketch3.addConstraint(Sketcher.Constraint("Symmetric", 11, 3, 41, 3, -1, 1))
sketch3.addConstraint(Sketcher.Constraint("Symmetric", 12, 3, 42, 3, -1, 1))
sketch3.addConstraint(Sketcher.Constraint("Symmetric", 13, 3, 43, 3, -1, 1))
sketch3.addConstraint(Sketcher.Constraint("Symmetric", 14, 3, 44, 3, -1, 1))
sketch3.addConstraint(Sketcher.Constraint("Symmetric", 15, 3, 45, 3, -1, 1))
sketch3.addConstraint(Sketcher.Constraint("Symmetric", 16, 3, 46, 3, -1, 1))
sketch3.addConstraint(Sketcher.Constraint("Symmetric", 23, 3, 47, 3, -1, 1))
sketch3.addConstraint(Sketcher.Constraint("Symmetric", 24, 3, 48, 3, -1, 1))
sketch3.addConstraint(Sketcher.Constraint("Symmetric", 25, 3, 49, 3, -1, 1))
sketch3.addConstraint(Sketcher.Constraint("Symmetric", 26, 3, 50, 3, -1, 1))
sketch3.addConstraint(Sketcher.Constraint("Symmetric", 27, 3, 51, 3, -1, 1))
sketch3.addConstraint(Sketcher.Constraint("Symmetric", 28, 3, 52, 3, -1, 1))
sketch3.addConstraint(Sketcher.Constraint("Symmetric", 29, 3, 53, 3, -1, 1))
sketch3.addConstraint(Sketcher.Constraint("Symmetric", 30, 3, 54, 3, -1, 1))
sketch3.addConstraint(Sketcher.Constraint("Symmetric", 31, 3, 55, 3, -1, 1))
sketch3.addConstraint(Sketcher.Constraint("Symmetric", 32, 3, 56, 3, -1, 1))
sketch3.addConstraint(Sketcher.Constraint("Symmetric", 33, 3, 57, 3, -1, 1))
sketch3.addConstraint(Sketcher.Constraint("Symmetric", 34, 3, 58, 3, -1, 1))
sketch3.addConstraint(Sketcher.Constraint("Symmetric", 4, 3, 59, 3, -1, 1))
sketch3.addConstraint(Sketcher.Constraint("Symmetric", 3, 3, 60, 3, -1, 1))
sketch3.addConstraint(Sketcher.Constraint("Symmetric", 2, 3, 61, 3, -1, 1))
sketch3.addConstraint(Sketcher.Constraint("Symmetric", 1, 3, 62, 3, -1, 1))
sketch3.addConstraint(Sketcher.Constraint("Symmetric", 34, 3, 35, 3, -2))
sketch3.addConstraint(Sketcher.Constraint("Symmetric", 33, 3, 36, 3, -2))
sketch3.addConstraint(Sketcher.Constraint("Symmetric", 32, 3, 37, 3, -2))
sketch3.addConstraint(Sketcher.Constraint("Symmetric", 31, 3, 38, 3, -2))
sketch3.addConstraint(Sketcher.Constraint("Symmetric", 30, 3, 39, 3, -2))
sketch3.addConstraint(Sketcher.Constraint("Symmetric", 29, 3, 40, 3, -2))
sketch3.addConstraint(Sketcher.Constraint("Symmetric", 28, 3, 41, 3, -2))
sketch3.addConstraint(Sketcher.Constraint("Symmetric", 27, 3, 42, 3, -2))
sketch3.addConstraint(Sketcher.Constraint("Symmetric", 26, 3, 43, 3, -2))
sketch3.addConstraint(Sketcher.Constraint("Symmetric", 25, 3, 44, 3, -2))
sketch3.addConstraint(Sketcher.Constraint("Symmetric", 24, 3, 45, 3, -2))
sketch3.addConstraint(Sketcher.Constraint("Symmetric", 23, 3, 46, 3, -2))
sketch3.addConstraint(Sketcher.Constraint("PointOnObject", 1, 3, -1))
sketch3.addConstraint(Sketcher.Constraint("PointOnObject", 2, 3, -1))
sketch3.addConstraint(Sketcher.Constraint("PointOnObject", 3, 3, -1))
sketch3.addConstraint(Sketcher.Constraint("PointOnObject", 4, 3, -1))
sketch3.addConstraint(Sketcher.Constraint("PointOnObject", 17, 3, -2))
sketch3.addConstraint(Sketcher.Constraint("PointOnObject", 18, 3, -2))
sketch3.addConstraint(Sketcher.Constraint("PointOnObject", 19, 3, -2))
sketch3.addConstraint(Sketcher.Constraint("Horizontal", 5, 3, 6, 3))
sketch3.addConstraint(Sketcher.Constraint("Horizontal", 6, 3, 7, 3))
sketch3.addConstraint(Sketcher.Constraint("Horizontal", 7, 3, 8, 3))
sketch3.addConstraint(Sketcher.Constraint("Horizontal", 9, 3, 10, 3))
sketch3.addConstraint(Sketcher.Constraint("Horizontal", 10, 3, 11, 3))
sketch3.addConstraint(Sketcher.Constraint("Horizontal", 11, 3, 12, 3))
sketch3.addConstraint(Sketcher.Constraint("Horizontal", 13, 3, 14, 3))
sketch3.addConstraint(Sketcher.Constraint("Horizontal", 14, 3, 15, 3))
sketch3.addConstraint(Sketcher.Constraint("Horizontal", 15, 3, 16, 3))
sketch3.addConstraint(Sketcher.Constraint("Horizontal", 8, 3, 17, 3))
sketch3.addConstraint(Sketcher.Constraint("Horizontal", 12, 3, 18, 3))
sketch3.addConstraint(Sketcher.Constraint("Horizontal", 16, 3, 19, 3))
sketch3.addConstraint(Sketcher.Constraint("Vertical", 1, 3, 5, 3))
sketch3.addConstraint(Sketcher.Constraint("Vertical", 2, 3, 6, 3))
sketch3.addConstraint(Sketcher.Constraint("Vertical", 3, 3, 7, 3))
sketch3.addConstraint(Sketcher.Constraint("Vertical", 4, 3, 8, 3))
sketch3.addConstraint(Sketcher.Constraint("Vertical", 5, 3, 9, 3))
sketch3.addConstraint(Sketcher.Constraint("Vertical", 6, 3, 10, 3))
sketch3.addConstraint(Sketcher.Constraint("Vertical", 7, 3, 11, 3))
sketch3.addConstraint(Sketcher.Constraint("Vertical", 8, 3, 12, 3))
sketch3.addConstraint(Sketcher.Constraint("Vertical", 9, 3, 13, 3))
sketch3.addConstraint(Sketcher.Constraint("Vertical", 10, 3, 14, 3))
sketch3.addConstraint(Sketcher.Constraint("Vertical", 11, 3, 15, 3))
sketch3.addConstraint(Sketcher.Constraint("Vertical", 12, 3, 16, 3))
sketch3.addConstraint(Sketcher.Constraint("Diameter", 0, Q("3 mm")))
sketch3.addConstraint(Sketcher.Constraint("DistanceX", -1, 1, 1, 3, Q("10 mm")))
sketch3.addConstraint(Sketcher.Constraint("DistanceX", -1, 1, 2, 3, Q("20 mm")))
sketch3.addConstraint(Sketcher.Constraint("DistanceX", -1, 1, 3, 3, Q("30 mm")))
sketch3.addConstraint(Sketcher.Constraint("DistanceX", -1, 1, 4, 3, Q("40 mm")))
sketch3.addConstraint(Sketcher.Constraint("DistanceY", -1, 1, 5, 3, Q("10 mm")))
sketch3.addConstraint(Sketcher.Constraint("DistanceY", -1, 1, 9, 3, Q("20 mm")))
sketch3.addConstraint(Sketcher.Constraint("DistanceY", -1, 1, 13, 3, Q("30 mm")))
sketch3.setExpression("Constraints[137]", "Params.sketch3_diameter")
pocket2 = body.newObject("PartDesign::Pocket", "Pocket001")
pocket2.Profile = sketch3
pocket2.Type = "ThroughAll"

doc.recompute()
